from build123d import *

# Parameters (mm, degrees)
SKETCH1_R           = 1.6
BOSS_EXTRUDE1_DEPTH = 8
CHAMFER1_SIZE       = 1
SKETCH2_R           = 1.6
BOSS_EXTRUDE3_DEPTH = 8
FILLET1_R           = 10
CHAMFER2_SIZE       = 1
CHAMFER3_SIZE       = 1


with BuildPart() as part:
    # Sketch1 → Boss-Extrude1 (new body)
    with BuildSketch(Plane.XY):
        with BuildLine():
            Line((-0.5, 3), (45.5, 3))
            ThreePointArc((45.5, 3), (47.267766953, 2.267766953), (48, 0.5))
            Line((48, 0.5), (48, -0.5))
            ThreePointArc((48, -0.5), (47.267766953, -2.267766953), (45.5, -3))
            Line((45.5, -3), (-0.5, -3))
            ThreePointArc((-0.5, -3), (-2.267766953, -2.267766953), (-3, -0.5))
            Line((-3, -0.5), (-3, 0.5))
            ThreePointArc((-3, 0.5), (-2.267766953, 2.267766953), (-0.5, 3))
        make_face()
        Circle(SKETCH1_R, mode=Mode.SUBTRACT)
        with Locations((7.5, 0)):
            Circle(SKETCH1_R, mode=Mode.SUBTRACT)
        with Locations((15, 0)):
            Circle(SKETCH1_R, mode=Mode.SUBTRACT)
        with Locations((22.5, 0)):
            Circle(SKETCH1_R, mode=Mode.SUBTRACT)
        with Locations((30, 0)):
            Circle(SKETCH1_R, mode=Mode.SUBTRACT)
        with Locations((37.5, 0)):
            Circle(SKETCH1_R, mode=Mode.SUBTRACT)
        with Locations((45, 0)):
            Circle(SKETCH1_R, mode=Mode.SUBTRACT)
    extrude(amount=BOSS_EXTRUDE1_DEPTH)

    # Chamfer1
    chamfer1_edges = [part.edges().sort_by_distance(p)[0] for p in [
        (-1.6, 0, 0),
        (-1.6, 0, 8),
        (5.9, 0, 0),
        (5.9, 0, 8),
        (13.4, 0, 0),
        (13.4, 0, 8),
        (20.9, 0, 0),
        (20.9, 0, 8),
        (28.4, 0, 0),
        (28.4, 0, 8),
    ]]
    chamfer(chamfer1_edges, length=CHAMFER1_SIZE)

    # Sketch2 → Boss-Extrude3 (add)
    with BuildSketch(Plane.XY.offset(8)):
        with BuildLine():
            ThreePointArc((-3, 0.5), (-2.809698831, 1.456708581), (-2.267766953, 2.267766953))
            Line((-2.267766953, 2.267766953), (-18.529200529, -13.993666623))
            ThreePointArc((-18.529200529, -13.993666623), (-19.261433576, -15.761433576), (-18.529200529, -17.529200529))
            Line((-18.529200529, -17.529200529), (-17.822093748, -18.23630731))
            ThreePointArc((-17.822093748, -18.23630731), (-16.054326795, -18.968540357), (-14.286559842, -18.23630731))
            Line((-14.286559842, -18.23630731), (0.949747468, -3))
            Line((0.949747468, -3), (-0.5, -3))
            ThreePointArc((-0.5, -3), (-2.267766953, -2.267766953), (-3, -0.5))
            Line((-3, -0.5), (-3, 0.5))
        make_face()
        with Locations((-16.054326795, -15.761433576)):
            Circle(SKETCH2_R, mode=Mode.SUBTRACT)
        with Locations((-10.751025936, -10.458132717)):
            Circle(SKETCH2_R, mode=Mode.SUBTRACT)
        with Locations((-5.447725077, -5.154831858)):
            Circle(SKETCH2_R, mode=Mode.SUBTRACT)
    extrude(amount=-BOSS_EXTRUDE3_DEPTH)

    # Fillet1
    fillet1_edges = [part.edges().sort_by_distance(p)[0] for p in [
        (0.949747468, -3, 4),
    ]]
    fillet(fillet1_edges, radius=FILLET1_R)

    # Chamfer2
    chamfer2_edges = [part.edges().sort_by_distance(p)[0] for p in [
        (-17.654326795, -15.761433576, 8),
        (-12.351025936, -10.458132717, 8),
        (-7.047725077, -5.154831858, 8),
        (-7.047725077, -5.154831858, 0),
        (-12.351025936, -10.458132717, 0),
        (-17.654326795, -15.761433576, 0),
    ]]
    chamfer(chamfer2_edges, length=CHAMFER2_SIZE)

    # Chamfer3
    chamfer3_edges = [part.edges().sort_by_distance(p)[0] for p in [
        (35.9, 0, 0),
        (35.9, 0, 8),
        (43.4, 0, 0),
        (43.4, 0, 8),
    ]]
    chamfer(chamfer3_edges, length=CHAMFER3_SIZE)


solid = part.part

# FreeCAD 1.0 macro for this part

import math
import FreeCAD as App
import Part
import Sketcher
from FreeCAD import Vector
Q = App.Units.Quantity


def edges_at(feature, points):
    """Names of the edges that pass closest to the given points."""
    edges = feature.Shape.Edges
    near = lambda p: min(range(len(edges)), key=lambda i: edges[i].distToShape(Part.Vertex(*p))[0])
    return sorted({f"Edge{near(p) + 1}" for p in points})

doc = App.newDocument("Part")
body = doc.addObject("PartDesign::Body", "Body")

# Sketch on XY plane
sketch1 = body.newObject("Sketcher::SketchObject", "Sketch")
sketch1.AttachmentSupport = (doc.getObject("XY_Plane"), [""])
sketch1.MapMode = "FlatFace"
sketch1.addGeometry(Part.LineSegment(Vector(45.5, 3, 0), Vector(-0.5, 3, 0)), False)
sketch1.addGeometry(Part.ArcOfCircle(Part.Circle(Vector(-0.5, 0.5, 0), Vector(0, 0, 1), 2.5), math.radians(90), math.radians(180)), False)
sketch1.addGeometry(Part.LineSegment(Vector(-3, 0.5, 0), Vector(-3, -0.5, 0)), False)
sketch1.addGeometry(Part.ArcOfCircle(Part.Circle(Vector(-0.5, -0.5, 0), Vector(0, 0, 1), 2.5), math.radians(180), math.radians(270)), False)
sketch1.addGeometry(Part.LineSegment(Vector(-0.5, -3, 0), Vector(45.5, -3, 0)), False)
sketch1.addGeometry(Part.ArcOfCircle(Part.Circle(Vector(45.5, -0.5, 0), Vector(0, 0, 1), 2.5), math.radians(-90), math.radians(0)), False)
sketch1.addGeometry(Part.LineSegment(Vector(48, -0.5, 0), Vector(48, 0.5, 0)), False)
sketch1.addGeometry(Part.ArcOfCircle(Part.Circle(Vector(45.5, 0.5, 0), Vector(0, 0, 1), 2.5), math.radians(0), math.radians(90)), False)
sketch1.addGeometry(Part.Circle(Vector(45, 0, 0), Vector(0, 0, 1), 1.6), False)
sketch1.addGeometry(Part.Circle(Vector(37.5, 0, 0), Vector(0, 0, 1), 1.6), False)
sketch1.addGeometry(Part.Circle(Vector(30, 0, 0), Vector(0, 0, 1), 1.6), False)
sketch1.addGeometry(Part.Circle(Vector(22.5, 0, 0), Vector(0, 0, 1), 1.6), False)
sketch1.addGeometry(Part.Circle(Vector(15, 0, 0), Vector(0, 0, 1), 1.6), False)
sketch1.addGeometry(Part.Circle(Vector(7.5, 0, 0), Vector(0, 0, 1), 1.6), False)
sketch1.addGeometry(Part.Circle(Vector(0, 0, 0), Vector(0, 0, 1), 1.6), False)
sketch1.addConstraint(Sketcher.Constraint("Tangent", 0, 2, 1, 1))
sketch1.addConstraint(Sketcher.Constraint("Tangent", 1, 2, 2, 1))
sketch1.addConstraint(Sketcher.Constraint("Tangent", 2, 2, 3, 1))
sketch1.addConstraint(Sketcher.Constraint("Tangent", 3, 2, 4, 1))
sketch1.addConstraint(Sketcher.Constraint("Tangent", 4, 2, 5, 1))
sketch1.addConstraint(Sketcher.Constraint("Tangent", 5, 2, 6, 1))
sketch1.addConstraint(Sketcher.Constraint("Tangent", 6, 2, 7, 1))
sketch1.addConstraint(Sketcher.Constraint("Tangent", 7, 2, 0, 1))
sketch1.addConstraint(Sketcher.Constraint("Horizontal", 0))
sketch1.addConstraint(Sketcher.Constraint("Vertical", 2))
sketch1.addConstraint(Sketcher.Constraint("Horizontal", 4))
sketch1.addConstraint(Sketcher.Constraint("Vertical", 6))
sketch1.addConstraint(Sketcher.Constraint("Coincident", 14, 3, -1, 1))
sketch1.addConstraint(Sketcher.Constraint("Equal", 1, 3))
sketch1.addConstraint(Sketcher.Constraint("Equal", 3, 5))
sketch1.addConstraint(Sketcher.Constraint("Equal", 5, 7))
sketch1.addConstraint(Sketcher.Constraint("Equal", 8, 9))
sketch1.addConstraint(Sketcher.Constraint("Equal", 9, 10))
sketch1.addConstraint(Sketcher.Constraint("Equal", 10, 11))
sketch1.addConstraint(Sketcher.Constraint("Equal", 11, 12))
sketch1.addConstraint(Sketcher.Constraint("Equal", 12, 13))
sketch1.addConstraint(Sketcher.Constraint("Equal", 13, 14))
sketch1.addConstraint(Sketcher.Constraint("PointOnObject", 8, 3, -1))
sketch1.addConstraint(Sketcher.Constraint("PointOnObject", 9, 3, -1))
sketch1.addConstraint(Sketcher.Constraint("PointOnObject", 10, 3, -1))
sketch1.addConstraint(Sketcher.Constraint("PointOnObject", 11, 3, -1))
sketch1.addConstraint(Sketcher.Constraint("PointOnObject", 12, 3, -1))
sketch1.addConstraint(Sketcher.Constraint("PointOnObject", 13, 3, -1))
sketch1.addConstraint(Sketcher.Constraint("Diameter", 8, Q("3.2 mm")))
sketch1.addConstraint(Sketcher.Constraint("Radius", 1, Q("2.5 mm")))
sketch1.addConstraint(Sketcher.Constraint("DistanceX", 0, 2, 0, 1, Q("46 mm")))
sketch1.addConstraint(Sketcher.Constraint("DistanceY", 2, 2, 2, 1, Q("1 mm")))
sketch1.addConstraint(Sketcher.Constraint("DistanceX", -1, 1, 8, 3, Q("45 mm")))
sketch1.addConstraint(Sketcher.Constraint("DistanceX", -1, 1, 10, 3, Q("30 mm")))
sketch1.addConstraint(Sketcher.Constraint("DistanceX", -1, 1, 12, 3, Q("15 mm")))
sketch1.addConstraint(Sketcher.Constraint("DistanceY", -1, 1, 0, 2, Q("3 mm")))
sketch1.addConstraint(Sketcher.Constraint("DistanceX", 1, 2, -1, 1, Q("3 mm")))
sketch1.addConstraint(Sketcher.Constraint("DistanceX", 9, 3, 5, 3, Q("8 mm")))
sketch1.addConstraint(Sketcher.Constraint("DistanceX", 11, 3, 9, 3, Q("15 mm")))
sketch1.addConstraint(Sketcher.Constraint("DistanceX", 1, 3, 13, 3, Q("8 mm")))
pad1 = body.newObject("PartDesign::Pad", "Pad")
pad1.Profile = sketch1
pad1.Length = 8
doc.recompute()

chamfer = body.newObject("PartDesign::Chamfer", "Chamfer")
chamfer.Base = (pad1, edges_at(pad1, [
    (-1.6, 0, 0),
    (-1.6, 0, 8),
    (5.9, 0, 0),
    (5.9, 0, 8),
    (13.4, 0, 0),
    (13.4, 0, 8),
    (20.9, 0, 0),
    (20.9, 0, 8),
    (28.4, 0, 0),
    (28.4, 0, 8),
]))
chamfer.Size = 1

# Sketch on XY plane
sketch2 = body.newObject("Sketcher::SketchObject", "Sketch001")
sketch2.AttachmentSupport = (doc.getObject("XY_Plane"), [""])
sketch2.MapMode = "FlatFace"
sketch2.AttachmentOffset = App.Placement(Vector(0, 0, 8), App.Rotation())
sketch2.addGeometry(Part.ArcOfCircle(Part.Circle(Vector(-0.5, 0.5, 0), Vector(0, 0, 1), 2.5), math.radians(135), math.radians(180)), False)
sketch2.addGeometry(Part.LineSegment(Vector(-2.3, 2.3, 0), Vector(-18.5, -14, 0)), False)
sketch2.addGeometry(Part.ArcOfCircle(Part.Circle(Vector(-16.8, -15.8, 0), Vector(0, 0, 1), 2.5), math.radians(135), math.radians(225)), False)
sketch2.addGeometry(Part.LineSegment(Vector(-18.5, -17.5, 0), Vector(-17.8, -18.2, 0)), False)
sketch2.addGeometry(Part.ArcOfCircle(Part.Circle(Vector(-16.1, -16.5, 0), Vector(0, 0, 1), 2.5), math.radians(-135), math.radians(-45)), False)
sketch2.addGeometry(Part.LineSegment(Vector(-14.3, -18.2, 0), Vector(0.9, -3, 0)), False)
sketch2.addGeometry(Part.LineSegment(Vector(0.9, -3, 0), Vector(-0.5, -3, 0)), False)
sketch2.addGeometry(Part.ArcOfCircle(Part.Circle(Vector(-0.5, -0.5, 0), Vector(0, 0, 1), 2.5), math.radians(180), math.radians(270)), False)
sketch2.addGeometry(Part.LineSegment(Vector(-3, -0.5, 0), Vector(-3, 0.5, 0)), False)
sketch2.addGeometry(Part.Circle(Vector(-16.1, -15.8, 0), Vector(0, 0, 1), 1.6), False)
sketch2.addGeometry(Part.Circle(Vector(-10.8, -10.5, 0), Vector(0, 0, 1), 1.6), False)
sketch2.addGeometry(Part.Circle(Vector(-5.4, -5.2, 0), Vector(0, 0, 1), 1.6), False)
sketch2.addConstraint(Sketcher.Constraint("Tangent", 0, 1, 1, 1))
sketch2.addConstraint(Sketcher.Constraint("Tangent", 1, 2, 2, 1))
sketch2.addConstraint(Sketcher.Constraint("Tangent", 2, 2, 3, 1))
sketch2.addConstraint(Sketcher.Constraint("Tangent", 3, 2, 4, 1))
sketch2.addConstraint(Sketcher.Constraint("Tangent", 4, 2, 5, 1))
sketch2.addConstraint(Sketcher.Constraint("Coincident", 5, 2, 6, 1))
sketch2.addConstraint(Sketcher.Constraint("Tangent", 6, 2, 7, 2))
sketch2.addConstraint(Sketcher.Constraint("Tangent", 7, 1, 8, 1))
sketch2.addConstraint(Sketcher.Constraint("Tangent", 8, 2, 0, 2))
sketch2.addConstraint(Sketcher.Constraint("Horizontal", 6))
sketch2.addConstraint(Sketcher.Constraint("Vertical", 8))
sketch2.addConstraint(Sketcher.Constraint("Equal", 0, 2))
sketch2.addConstraint(Sketcher.Constraint("Equal", 2, 4))
sketch2.addConstraint(Sketcher.Constraint("Equal", 4, 7))
sketch2.addConstraint(Sketcher.Constraint("Equal", 9, 10))
sketch2.addConstraint(Sketcher.Constraint("Equal", 10, 11))
sketch2.addConstraint(Sketcher.Constraint("Perpendicular", 1, 3))
sketch2.addConstraint(Sketcher.Constraint("Perpendicular", 3, 5))
sketch2.addConstraint(Sketcher.Constraint("Horizontal", 2, 3, 9, 3))
sketch2.addConstraint(Sketcher.Constraint("Horizontal", 3, 2, 4, 2))
sketch2.addConstraint(Sketcher.Constraint("Vertical", 4, 3, 9, 3))
sketch2.addConstraint(Sketcher.Constraint("Diameter", 9, Q("3.2 mm")))
sketch2.addConstraint(Sketcher.Constraint("Radius", 0, Q("2.5 mm")))
sketch2.addConstraint(Sketcher.Constraint("DistanceY", 8, 1, 8, 2, Q("1 mm")))
sketch2.addConstraint(Sketcher.Constraint("Distance", 3, Q("1 mm")))
sketch2.addConstraint(Sketcher.Constraint("DistanceY", 5, 2, -1, 1, Q("3 mm")))
sketch2.addConstraint(Sketcher.Constraint("DistanceX", 7, 1, -1, 1, Q("3 mm")))
sketch2.addConstraint(Sketcher.Constraint("DistanceX", 1, 2, -1, 1, Q("18.529201 mm")))
sketch2.addConstraint(Sketcher.Constraint("DistanceX", 9, 3, 10, 3, Q("5.303301 mm")))
sketch2.addConstraint(Sketcher.Constraint("DistanceY", 9, 3, 10, 3, Q("5.303301 mm")))
sketch2.addConstraint(Sketcher.Constraint("DistanceX", 10, 3, 11, 3, Q("5.303301 mm")))
sketch2.addConstraint(Sketcher.Constraint("DistanceY", 10, 3, 11, 3, Q("5.303301 mm")))
pad2 = body.newObject("PartDesign::Pad", "Pad001")
pad2.Profile = sketch2
pad2.Length = 8
pad2.Reversed = True
doc.recompute()

fillet = body.newObject("PartDesign::Fillet", "Fillet")
fillet.Base = (pad2, edges_at(pad2, [(0.95, -3, 4)]))
fillet.Radius = 10
doc.recompute()

chamfer2 = body.newObject("PartDesign::Chamfer", "Chamfer001")
chamfer2.Base = (fillet, edges_at(fillet, [
    (-17.654, -15.761, 8),
    (-12.351, -10.458, 8),
    (-7.048, -5.155, 8),
    (-7.048, -5.155, 0),
    (-12.351, -10.458, 0),
    (-17.654, -15.761, 0),
]))
chamfer2.Size = 1
doc.recompute()

chamfer3 = body.newObject("PartDesign::Chamfer", "Chamfer002")
chamfer3.Base = (chamfer2, edges_at(chamfer2, [
    (35.9, 0, 0),
    (35.9, 0, 8),
    (43.4, 0, 0),
    (43.4, 0, 8),
]))
chamfer3.Size = 1

doc.recompute()
